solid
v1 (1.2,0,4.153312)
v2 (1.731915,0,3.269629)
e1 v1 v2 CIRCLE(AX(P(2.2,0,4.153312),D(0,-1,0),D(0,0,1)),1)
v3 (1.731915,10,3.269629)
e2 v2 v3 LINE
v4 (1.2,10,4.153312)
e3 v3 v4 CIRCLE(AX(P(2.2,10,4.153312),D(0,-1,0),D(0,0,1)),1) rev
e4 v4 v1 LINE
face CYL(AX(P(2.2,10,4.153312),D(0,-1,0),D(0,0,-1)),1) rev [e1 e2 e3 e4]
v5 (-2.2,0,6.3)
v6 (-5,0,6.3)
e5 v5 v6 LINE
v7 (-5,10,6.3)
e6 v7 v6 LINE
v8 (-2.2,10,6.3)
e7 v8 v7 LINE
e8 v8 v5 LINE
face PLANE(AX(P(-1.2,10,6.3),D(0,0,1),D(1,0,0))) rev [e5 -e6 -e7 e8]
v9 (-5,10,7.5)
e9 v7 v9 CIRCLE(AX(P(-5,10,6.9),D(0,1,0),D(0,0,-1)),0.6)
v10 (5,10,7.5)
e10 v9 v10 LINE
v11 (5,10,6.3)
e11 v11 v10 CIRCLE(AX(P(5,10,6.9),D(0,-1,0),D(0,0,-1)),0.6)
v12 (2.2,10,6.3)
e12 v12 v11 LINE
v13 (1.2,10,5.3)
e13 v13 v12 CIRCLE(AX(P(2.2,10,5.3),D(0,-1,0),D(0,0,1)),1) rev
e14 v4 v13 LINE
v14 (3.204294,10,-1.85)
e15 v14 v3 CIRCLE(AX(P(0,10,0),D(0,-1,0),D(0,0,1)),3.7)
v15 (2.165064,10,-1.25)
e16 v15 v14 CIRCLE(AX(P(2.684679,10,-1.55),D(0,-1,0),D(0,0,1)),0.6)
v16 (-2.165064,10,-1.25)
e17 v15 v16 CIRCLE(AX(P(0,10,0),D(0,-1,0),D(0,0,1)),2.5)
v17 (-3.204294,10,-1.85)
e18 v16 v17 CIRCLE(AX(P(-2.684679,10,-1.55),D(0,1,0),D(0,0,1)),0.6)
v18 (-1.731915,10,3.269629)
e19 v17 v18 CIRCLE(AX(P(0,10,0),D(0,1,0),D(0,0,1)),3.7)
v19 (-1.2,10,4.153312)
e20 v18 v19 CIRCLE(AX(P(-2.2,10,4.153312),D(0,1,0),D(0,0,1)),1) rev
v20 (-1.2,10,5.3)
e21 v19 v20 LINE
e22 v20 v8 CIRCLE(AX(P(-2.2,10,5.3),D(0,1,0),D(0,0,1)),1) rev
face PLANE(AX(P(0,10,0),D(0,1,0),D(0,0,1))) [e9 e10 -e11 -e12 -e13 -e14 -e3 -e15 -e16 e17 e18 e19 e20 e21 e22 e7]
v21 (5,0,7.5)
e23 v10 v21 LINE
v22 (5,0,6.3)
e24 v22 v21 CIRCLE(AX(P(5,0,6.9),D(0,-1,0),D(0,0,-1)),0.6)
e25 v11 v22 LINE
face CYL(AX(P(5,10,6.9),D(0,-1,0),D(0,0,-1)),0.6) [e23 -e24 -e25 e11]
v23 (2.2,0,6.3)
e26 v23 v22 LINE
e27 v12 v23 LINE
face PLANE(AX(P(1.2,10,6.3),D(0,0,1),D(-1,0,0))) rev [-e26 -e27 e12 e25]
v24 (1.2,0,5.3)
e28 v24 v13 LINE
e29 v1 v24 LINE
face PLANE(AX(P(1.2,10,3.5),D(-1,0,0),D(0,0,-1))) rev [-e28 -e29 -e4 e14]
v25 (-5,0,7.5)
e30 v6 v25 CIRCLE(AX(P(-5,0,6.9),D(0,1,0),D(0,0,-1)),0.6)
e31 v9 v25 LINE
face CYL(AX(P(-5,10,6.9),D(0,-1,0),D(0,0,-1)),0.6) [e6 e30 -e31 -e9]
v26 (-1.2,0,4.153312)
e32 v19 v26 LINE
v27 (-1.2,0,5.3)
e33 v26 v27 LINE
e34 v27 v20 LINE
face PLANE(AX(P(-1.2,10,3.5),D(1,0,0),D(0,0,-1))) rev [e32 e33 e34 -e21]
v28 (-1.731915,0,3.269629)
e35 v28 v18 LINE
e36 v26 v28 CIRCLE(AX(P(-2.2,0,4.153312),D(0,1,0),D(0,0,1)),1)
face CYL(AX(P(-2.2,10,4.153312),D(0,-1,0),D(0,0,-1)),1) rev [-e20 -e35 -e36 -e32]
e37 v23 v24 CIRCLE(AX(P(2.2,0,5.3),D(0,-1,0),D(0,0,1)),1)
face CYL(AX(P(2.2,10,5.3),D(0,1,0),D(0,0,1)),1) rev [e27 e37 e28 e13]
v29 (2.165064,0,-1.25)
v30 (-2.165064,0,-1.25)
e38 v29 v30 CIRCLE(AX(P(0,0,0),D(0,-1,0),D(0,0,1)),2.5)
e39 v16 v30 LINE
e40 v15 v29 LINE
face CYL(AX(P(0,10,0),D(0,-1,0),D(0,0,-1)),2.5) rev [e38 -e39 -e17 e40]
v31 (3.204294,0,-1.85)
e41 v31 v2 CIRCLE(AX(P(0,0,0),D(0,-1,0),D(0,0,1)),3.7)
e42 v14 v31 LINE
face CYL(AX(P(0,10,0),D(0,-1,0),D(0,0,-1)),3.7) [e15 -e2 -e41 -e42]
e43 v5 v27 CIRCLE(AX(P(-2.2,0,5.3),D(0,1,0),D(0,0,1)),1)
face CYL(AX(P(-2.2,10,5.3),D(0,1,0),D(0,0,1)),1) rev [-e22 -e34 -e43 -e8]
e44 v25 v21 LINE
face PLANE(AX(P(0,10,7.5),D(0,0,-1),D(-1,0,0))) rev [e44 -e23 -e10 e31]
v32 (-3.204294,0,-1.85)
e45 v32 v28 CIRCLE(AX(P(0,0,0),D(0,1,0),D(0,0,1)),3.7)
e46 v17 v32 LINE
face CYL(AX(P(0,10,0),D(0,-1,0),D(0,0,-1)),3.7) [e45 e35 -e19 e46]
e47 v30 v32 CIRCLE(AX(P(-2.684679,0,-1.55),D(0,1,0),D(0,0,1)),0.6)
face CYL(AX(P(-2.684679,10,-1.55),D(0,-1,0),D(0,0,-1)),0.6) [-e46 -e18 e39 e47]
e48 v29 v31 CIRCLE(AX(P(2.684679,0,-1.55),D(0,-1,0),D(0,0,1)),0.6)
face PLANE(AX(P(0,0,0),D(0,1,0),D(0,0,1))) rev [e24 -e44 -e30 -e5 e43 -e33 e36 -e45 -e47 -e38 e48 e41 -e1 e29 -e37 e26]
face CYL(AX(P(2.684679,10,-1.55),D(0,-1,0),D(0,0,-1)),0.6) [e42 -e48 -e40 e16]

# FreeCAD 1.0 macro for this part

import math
import FreeCAD as App
import Part
import Sketcher
Q = App.Units.Quantity


def edges_at(feature, points):
    """Names of the edges that pass closest to the given points."""
    edges = feature.Shape.Edges
    near = lambda p: min(range(len(edges)), key=lambda i: edges[i].distToShape(Part.Vertex(*p))[0])
    return sorted({f"Edge{near(p) + 1}" for p in points})

doc = App.newDocument("Part")
body = doc.addObject("PartDesign::Body", "Body")

sketch1 = body.newObject("Sketcher::SketchObject", "Sketch")
sketch1.AttachmentSupport = (doc.getObject("XZ_Plane"), [""])
sketch1.MapMode = "FlatFace"
sketch1.addGeometry(Part.LineSegment(App.Vector(0, 7.5, 0), App.Vector(0, 2.5, 0)), False)
sketch1.addGeometry(Part.ArcOfCircle(Part.Circle(App.Vector(0, 0, 0), App.Vector(0, 0, 1), 2.5), math.radians(90), math.radians(210)), False)
sketch1.addGeometry(Part.ArcOfCircle(Part.Circle(App.Vector(-2.684679, -1.55, 0), App.Vector(0, 0, 1), 0.6), math.radians(-150), math.radians(30)), False)
sketch1.addGeometry(Part.ArcOfCircle(Part.Circle(App.Vector(0, 0, 0), App.Vector(0, 0, 1), 3.7), math.radians(108.924644), math.radians(210)), False)
sketch1.addGeometry(Part.LineSegment(App.Vector(-1.2, 3.5, 0), App.Vector(-1.2, 6.3, 0)), False)
sketch1.addGeometry(Part.LineSegment(App.Vector(-1.2, 6.3, 0), App.Vector(-5, 6.3, 0)), False)
sketch1.addGeometry(Part.ArcOfCircle(Part.Circle(App.Vector(-5, 6.9, 0), App.Vector(0, 0, 1), 0.6), math.radians(90), math.radians(270)), False)
sketch1.addGeometry(Part.LineSegment(App.Vector(-5, 7.5, 0), App.Vector(0, 7.5, 0)), False)
sketch1.addConstraint(Sketcher.Constraint("Coincident", 0, 2, 1, 1))
sketch1.addConstraint(Sketcher.Constraint("Tangent", 1, 2, 2, 2))
sketch1.addConstraint(Sketcher.Constraint("Tangent", 2, 1, 3, 2))
sketch1.addConstraint(Sketcher.Constraint("Coincident", 3, 1, 4, 1))
sketch1.addConstraint(Sketcher.Constraint("Coincident", 4, 2, 5, 1))
sketch1.addConstraint(Sketcher.Constraint("Tangent", 5, 2, 6, 2))
sketch1.addConstraint(Sketcher.Constraint("Tangent", 6, 1, 7, 1))
sketch1.addConstraint(Sketcher.Constraint("Coincident", 7, 2, 0, 1))
sketch1.addConstraint(Sketcher.Constraint("Vertical", 0))
sketch1.addConstraint(Sketcher.Constraint("Vertical", 4))
sketch1.addConstraint(Sketcher.Constraint("Horizontal", 5))
sketch1.addConstraint(Sketcher.Constraint("Horizontal", 7))
sketch1.addConstraint(Sketcher.Constraint("Coincident", 1, 3, -1, 1))
sketch1.addConstraint(Sketcher.Constraint("Coincident", 3, 3, -1, 1))
sketch1.addConstraint(Sketcher.Constraint("Equal", 2, 6))
sketch1.addConstraint(Sketcher.Constraint("PointOnObject", 0, 2, -2))
sketch1.addConstraint(Sketcher.Constraint("Equal", 7, 0))
sketch1.addConstraint(Sketcher.Constraint("Radius", 1, Q("2.5 mm")))
sketch1.addConstraint(Sketcher.Constraint("Radius", 2, Q("0.6 mm")))
sketch1.addConstraint(Sketcher.Constraint("DistanceX", 7, 1, 7, 2, Q("5 mm")))
sketch1.addConstraint(Sketcher.Constraint("DistanceX", 5, 2, 5, 1, Q("3.8 mm")))
sketch1.addConstraint(Sketcher.Constraint("DistanceY", 2, 3, 1, 2, Q("0.3 mm")))
pad1 = body.newObject("PartDesign::Pad", "Pad")
pad1.Profile = sketch1
pad1.Length = 10
pad1.Reversed = True
doc.recompute()

fillet = body.newObject("PartDesign::Fillet", "Fillet")
fillet.Base = (pad1, edges_at(pad1, [(-1.2, 5, 6.3), (-1.2, 5, 3.5)]))
fillet.Radius = 1
body2 = doc.addObject("PartDesign::Body", "Body001")
doc.recompute()

body2.BaseFeature = body
doc.recompute()

mirroring = doc.addObject("Part::Mirroring", "Mirroring")
mirroring.Source = body
mirroring.Base = App.Vector(0, 10, 2.5)
mirroring.Normal = App.Vector(-1, 0, 0)
body3 = doc.addObject("PartDesign::Body", "Body002")
body3.BaseFeature = mirroring
boolean = body2.newObject("PartDesign::Boolean", "Boolean")
boolean.Type = "Fuse"
boolean.addObjects([body3])
doc.recompute()
mirroring.Visibility = False

doc.recompute()
